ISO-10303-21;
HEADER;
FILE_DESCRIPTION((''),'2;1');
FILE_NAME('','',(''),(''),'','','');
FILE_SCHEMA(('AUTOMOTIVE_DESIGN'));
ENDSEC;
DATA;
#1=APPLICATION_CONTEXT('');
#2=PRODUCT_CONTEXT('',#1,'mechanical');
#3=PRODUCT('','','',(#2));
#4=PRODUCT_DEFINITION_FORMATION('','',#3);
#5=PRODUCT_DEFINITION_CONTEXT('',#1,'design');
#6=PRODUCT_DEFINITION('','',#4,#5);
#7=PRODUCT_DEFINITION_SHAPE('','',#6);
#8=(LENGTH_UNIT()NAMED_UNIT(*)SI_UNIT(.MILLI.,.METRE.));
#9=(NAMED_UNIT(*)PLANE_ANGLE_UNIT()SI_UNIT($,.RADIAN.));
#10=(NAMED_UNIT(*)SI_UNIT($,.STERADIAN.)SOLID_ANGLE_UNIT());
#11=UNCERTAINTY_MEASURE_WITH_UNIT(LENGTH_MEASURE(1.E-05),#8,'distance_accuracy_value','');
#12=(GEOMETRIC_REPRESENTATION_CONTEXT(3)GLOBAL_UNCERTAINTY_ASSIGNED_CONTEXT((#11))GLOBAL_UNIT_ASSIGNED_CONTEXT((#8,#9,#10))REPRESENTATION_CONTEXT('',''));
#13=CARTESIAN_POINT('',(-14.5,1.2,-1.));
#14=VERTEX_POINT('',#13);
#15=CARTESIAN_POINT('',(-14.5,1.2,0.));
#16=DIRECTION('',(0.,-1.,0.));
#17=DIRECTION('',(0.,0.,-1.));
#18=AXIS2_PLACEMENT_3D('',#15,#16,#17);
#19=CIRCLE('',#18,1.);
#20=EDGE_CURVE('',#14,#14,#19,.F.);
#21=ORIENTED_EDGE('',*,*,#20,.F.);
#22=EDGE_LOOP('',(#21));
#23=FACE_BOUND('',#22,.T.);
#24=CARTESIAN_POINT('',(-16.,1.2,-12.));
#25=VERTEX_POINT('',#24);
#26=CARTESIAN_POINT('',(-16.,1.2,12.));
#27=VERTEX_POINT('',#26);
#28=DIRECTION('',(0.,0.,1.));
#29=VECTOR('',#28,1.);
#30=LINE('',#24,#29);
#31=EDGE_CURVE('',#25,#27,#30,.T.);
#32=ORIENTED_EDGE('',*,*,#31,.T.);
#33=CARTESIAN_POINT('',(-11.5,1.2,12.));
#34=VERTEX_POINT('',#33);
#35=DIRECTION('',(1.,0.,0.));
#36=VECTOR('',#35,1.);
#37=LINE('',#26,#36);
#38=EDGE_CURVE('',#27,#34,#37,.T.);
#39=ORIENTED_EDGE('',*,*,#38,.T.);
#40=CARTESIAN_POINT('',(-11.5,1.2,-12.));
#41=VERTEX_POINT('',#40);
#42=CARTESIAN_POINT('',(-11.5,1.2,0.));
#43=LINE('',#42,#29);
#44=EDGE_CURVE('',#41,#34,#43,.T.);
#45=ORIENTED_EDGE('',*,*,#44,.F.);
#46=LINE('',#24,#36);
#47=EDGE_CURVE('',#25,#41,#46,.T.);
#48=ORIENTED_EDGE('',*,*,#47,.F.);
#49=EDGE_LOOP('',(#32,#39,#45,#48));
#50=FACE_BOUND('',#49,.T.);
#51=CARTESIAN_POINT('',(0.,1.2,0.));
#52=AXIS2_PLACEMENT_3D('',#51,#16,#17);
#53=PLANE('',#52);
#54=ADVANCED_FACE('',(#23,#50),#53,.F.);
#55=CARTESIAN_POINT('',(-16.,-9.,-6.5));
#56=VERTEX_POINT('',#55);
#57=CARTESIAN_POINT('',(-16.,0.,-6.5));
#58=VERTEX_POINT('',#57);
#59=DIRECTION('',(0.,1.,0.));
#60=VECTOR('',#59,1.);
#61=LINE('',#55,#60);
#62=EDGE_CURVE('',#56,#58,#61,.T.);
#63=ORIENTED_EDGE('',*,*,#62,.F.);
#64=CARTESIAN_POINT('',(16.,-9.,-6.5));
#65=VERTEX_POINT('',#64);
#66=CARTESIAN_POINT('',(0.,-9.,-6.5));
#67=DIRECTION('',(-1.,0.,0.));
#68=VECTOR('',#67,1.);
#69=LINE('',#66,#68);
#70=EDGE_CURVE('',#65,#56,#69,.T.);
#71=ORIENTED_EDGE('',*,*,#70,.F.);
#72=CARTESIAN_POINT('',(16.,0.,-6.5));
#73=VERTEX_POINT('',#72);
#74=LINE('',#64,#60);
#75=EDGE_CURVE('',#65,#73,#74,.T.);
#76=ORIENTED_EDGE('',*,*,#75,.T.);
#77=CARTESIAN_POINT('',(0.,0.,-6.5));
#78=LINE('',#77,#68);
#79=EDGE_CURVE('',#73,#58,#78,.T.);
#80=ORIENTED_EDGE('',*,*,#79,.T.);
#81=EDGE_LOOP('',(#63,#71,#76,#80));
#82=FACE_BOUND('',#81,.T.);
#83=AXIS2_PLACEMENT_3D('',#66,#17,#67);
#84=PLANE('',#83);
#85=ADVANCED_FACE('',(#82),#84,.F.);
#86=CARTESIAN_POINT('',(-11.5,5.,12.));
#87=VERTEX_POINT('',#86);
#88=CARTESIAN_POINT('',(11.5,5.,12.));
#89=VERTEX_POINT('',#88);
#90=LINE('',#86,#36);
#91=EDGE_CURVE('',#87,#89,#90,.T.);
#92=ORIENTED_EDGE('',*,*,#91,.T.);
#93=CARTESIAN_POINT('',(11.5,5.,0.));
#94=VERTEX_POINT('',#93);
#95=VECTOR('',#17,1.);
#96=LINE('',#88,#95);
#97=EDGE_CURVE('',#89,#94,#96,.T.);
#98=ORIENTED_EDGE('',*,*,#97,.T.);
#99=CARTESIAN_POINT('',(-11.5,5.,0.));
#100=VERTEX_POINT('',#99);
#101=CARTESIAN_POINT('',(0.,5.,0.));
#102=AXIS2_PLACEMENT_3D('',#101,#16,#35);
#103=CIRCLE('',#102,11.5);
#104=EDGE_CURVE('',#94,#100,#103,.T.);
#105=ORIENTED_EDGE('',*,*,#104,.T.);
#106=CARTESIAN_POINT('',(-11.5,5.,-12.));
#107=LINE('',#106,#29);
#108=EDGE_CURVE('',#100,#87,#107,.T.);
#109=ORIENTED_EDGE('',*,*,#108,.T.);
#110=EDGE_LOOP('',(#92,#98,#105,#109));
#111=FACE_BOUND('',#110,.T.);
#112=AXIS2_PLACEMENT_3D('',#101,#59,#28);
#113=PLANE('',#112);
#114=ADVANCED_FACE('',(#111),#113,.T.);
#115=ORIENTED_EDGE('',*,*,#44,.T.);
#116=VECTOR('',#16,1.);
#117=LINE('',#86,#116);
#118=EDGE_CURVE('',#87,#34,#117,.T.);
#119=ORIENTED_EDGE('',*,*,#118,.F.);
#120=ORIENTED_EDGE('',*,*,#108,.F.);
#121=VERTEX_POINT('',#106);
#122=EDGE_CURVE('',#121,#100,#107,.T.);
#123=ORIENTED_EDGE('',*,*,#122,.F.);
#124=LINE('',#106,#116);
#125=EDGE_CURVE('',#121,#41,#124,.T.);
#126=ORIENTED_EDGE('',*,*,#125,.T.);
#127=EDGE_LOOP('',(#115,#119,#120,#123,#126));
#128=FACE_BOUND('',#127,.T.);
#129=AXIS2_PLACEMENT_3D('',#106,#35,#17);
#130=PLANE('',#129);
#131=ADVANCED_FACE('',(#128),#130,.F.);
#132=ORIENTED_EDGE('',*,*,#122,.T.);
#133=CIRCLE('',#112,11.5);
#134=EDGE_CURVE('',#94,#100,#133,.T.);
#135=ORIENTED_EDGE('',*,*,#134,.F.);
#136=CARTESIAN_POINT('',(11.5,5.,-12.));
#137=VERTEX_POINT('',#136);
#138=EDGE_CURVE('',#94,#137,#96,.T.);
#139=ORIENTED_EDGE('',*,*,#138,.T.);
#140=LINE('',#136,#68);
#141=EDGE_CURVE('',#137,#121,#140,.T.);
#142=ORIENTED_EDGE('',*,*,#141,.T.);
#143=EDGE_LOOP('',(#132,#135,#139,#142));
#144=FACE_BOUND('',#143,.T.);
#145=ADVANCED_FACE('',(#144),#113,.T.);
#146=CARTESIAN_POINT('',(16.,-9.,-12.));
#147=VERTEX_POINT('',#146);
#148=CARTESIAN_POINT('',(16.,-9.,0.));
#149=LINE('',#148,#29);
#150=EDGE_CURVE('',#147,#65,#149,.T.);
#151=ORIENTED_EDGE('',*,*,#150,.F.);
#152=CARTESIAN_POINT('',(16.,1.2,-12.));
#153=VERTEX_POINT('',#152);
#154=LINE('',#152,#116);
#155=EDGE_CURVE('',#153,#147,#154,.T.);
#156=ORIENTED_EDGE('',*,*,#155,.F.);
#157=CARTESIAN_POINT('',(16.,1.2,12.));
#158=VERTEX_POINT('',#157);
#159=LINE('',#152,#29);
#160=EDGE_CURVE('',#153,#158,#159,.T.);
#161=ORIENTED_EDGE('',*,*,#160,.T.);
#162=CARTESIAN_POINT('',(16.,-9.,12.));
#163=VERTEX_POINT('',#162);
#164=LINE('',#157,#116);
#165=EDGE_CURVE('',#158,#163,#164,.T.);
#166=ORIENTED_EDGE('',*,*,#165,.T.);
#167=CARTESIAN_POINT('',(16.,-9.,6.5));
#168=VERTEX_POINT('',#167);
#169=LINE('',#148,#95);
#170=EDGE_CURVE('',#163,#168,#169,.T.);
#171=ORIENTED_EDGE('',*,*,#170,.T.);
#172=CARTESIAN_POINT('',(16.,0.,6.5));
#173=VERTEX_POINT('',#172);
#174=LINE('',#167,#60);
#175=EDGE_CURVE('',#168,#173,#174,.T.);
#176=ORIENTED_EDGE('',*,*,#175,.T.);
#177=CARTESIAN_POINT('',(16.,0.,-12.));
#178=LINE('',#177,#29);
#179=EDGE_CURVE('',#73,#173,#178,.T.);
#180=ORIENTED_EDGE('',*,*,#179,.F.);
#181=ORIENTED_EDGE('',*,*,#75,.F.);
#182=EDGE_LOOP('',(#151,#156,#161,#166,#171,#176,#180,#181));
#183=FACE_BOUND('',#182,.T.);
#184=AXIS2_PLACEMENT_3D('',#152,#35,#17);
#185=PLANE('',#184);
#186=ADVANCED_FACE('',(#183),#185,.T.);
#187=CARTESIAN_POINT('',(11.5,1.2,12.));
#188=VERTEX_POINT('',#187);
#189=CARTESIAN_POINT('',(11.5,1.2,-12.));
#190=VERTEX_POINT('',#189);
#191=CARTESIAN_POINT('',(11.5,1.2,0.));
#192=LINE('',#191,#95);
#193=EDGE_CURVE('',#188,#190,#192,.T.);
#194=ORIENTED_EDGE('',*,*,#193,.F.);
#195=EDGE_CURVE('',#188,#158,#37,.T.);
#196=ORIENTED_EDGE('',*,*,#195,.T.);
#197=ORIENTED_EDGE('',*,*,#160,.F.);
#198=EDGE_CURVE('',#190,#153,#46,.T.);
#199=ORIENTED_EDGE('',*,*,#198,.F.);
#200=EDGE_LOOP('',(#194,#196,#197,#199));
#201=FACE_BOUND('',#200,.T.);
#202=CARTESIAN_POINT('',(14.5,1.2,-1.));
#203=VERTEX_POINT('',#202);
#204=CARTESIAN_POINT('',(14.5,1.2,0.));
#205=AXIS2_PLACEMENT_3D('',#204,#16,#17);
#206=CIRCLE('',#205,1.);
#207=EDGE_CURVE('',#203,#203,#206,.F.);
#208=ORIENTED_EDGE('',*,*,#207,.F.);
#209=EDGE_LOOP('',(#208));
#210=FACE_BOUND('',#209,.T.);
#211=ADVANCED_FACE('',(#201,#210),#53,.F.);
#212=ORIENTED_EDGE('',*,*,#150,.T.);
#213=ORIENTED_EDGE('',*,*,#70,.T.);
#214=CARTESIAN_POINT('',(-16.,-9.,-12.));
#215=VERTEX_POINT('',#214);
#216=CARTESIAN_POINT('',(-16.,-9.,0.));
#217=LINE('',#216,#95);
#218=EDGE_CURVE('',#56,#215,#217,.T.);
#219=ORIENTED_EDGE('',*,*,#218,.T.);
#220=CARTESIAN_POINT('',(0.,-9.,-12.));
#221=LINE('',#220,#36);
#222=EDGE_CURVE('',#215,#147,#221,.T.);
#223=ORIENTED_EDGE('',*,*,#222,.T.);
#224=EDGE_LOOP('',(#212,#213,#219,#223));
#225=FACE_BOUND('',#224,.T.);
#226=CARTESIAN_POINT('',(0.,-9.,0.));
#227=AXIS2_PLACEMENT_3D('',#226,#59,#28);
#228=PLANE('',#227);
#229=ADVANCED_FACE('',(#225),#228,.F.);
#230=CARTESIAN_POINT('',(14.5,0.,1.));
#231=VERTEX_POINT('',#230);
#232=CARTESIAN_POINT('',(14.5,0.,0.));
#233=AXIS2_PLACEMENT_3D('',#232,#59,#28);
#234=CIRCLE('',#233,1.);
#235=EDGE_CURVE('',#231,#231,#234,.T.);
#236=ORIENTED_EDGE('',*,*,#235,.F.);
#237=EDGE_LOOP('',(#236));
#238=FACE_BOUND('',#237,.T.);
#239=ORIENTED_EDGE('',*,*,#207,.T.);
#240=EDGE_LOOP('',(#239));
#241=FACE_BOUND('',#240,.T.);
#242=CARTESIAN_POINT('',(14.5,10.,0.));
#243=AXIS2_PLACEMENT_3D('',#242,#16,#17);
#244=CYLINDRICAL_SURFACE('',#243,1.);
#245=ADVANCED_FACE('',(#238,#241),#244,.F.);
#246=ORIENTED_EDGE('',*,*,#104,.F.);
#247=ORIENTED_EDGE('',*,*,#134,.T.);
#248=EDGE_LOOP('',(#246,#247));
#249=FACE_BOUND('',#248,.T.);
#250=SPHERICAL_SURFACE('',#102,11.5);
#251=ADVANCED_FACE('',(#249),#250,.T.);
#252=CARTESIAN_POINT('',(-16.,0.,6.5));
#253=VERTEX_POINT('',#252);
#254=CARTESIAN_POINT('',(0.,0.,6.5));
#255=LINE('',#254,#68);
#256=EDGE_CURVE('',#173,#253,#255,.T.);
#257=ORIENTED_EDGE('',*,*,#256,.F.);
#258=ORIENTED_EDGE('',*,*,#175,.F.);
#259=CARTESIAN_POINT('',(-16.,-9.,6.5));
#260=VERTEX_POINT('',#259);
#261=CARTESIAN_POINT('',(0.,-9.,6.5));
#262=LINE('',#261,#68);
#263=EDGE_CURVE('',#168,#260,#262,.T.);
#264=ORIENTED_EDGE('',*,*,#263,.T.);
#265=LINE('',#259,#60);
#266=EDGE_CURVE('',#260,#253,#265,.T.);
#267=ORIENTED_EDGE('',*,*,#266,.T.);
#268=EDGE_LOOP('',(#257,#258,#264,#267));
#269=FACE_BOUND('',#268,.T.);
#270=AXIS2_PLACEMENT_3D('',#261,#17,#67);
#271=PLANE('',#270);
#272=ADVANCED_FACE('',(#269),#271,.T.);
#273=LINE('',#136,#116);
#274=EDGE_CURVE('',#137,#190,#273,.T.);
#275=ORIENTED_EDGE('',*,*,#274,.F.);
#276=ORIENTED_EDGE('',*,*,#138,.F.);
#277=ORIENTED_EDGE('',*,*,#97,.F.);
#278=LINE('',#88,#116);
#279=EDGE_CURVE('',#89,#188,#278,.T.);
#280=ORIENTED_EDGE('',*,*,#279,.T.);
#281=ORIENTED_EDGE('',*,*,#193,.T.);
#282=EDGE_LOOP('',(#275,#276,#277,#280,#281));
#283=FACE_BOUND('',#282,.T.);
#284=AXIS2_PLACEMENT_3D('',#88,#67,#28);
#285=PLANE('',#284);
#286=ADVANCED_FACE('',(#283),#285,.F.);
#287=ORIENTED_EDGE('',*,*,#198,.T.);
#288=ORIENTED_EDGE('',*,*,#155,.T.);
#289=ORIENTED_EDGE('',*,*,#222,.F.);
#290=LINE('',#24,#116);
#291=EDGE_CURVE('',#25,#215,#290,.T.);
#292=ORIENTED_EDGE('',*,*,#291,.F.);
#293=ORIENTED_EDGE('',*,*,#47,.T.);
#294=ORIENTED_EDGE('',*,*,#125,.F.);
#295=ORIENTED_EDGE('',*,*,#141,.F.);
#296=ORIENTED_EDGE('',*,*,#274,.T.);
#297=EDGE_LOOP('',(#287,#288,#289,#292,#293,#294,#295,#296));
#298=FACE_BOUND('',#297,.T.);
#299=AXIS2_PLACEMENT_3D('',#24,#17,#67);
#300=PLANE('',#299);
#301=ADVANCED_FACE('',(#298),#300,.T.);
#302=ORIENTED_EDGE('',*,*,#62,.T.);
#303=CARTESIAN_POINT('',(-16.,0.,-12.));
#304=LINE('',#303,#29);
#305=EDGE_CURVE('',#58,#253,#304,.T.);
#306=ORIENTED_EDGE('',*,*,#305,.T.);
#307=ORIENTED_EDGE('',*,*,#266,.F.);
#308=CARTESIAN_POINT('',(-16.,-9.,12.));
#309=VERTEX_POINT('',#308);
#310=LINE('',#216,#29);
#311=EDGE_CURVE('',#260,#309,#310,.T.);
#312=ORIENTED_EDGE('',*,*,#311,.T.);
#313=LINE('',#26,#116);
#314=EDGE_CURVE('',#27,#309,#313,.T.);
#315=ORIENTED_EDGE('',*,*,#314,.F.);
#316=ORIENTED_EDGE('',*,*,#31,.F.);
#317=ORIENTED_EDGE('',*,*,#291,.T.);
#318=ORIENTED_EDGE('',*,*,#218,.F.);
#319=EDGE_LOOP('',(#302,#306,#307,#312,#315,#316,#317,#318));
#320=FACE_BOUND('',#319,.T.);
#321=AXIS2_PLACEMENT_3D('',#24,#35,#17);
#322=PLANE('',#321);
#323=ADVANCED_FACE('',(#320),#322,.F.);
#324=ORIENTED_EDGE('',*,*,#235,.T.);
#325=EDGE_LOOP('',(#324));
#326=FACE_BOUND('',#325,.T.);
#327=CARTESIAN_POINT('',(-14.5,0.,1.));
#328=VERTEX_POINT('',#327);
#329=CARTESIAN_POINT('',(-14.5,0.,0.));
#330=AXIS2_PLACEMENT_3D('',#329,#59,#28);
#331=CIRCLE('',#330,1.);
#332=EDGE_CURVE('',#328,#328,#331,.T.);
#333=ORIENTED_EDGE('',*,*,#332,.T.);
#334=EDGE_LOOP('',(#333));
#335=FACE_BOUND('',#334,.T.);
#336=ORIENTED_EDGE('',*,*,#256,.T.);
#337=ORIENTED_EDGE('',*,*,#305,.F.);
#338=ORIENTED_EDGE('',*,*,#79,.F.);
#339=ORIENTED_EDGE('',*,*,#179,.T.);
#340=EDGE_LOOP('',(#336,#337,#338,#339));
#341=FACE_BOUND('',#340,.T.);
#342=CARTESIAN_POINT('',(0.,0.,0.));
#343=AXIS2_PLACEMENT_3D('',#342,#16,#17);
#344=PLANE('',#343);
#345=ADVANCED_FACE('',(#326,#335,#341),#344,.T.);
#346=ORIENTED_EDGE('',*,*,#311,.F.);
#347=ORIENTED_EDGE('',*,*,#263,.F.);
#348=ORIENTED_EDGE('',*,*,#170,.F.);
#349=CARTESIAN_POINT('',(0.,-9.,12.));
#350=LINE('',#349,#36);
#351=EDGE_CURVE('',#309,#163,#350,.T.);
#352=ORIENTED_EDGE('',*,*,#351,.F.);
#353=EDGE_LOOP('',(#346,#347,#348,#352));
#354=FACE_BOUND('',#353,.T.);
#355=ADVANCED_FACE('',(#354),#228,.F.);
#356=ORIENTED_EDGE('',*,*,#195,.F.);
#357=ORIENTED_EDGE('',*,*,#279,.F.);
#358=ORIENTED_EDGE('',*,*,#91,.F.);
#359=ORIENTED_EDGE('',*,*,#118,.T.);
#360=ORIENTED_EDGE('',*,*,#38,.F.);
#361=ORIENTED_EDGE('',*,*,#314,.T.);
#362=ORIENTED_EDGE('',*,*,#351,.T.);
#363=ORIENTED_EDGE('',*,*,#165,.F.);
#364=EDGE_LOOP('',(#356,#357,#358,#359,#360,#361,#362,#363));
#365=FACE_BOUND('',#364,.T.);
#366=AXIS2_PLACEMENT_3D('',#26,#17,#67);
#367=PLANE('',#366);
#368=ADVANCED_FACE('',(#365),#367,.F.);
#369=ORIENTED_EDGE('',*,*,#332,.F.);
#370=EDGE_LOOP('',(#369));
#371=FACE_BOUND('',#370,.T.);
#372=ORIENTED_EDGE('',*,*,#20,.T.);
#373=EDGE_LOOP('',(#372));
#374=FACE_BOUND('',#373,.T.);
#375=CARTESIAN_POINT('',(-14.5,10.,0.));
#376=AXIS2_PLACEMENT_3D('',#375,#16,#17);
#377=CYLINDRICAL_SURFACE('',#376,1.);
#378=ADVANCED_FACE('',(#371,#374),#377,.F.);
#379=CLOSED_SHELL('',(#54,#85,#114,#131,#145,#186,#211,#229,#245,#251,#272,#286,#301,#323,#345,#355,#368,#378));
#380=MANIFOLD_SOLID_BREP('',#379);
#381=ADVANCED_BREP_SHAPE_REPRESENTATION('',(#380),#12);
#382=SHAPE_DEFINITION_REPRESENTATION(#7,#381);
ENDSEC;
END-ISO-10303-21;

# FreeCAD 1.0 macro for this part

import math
import FreeCAD as App
import Part
import Sketcher
from FreeCAD import Vector

doc = App.newDocument("Part")
body = doc.addObject("PartDesign::Body", "Body")

sketch1 = body.newObject("Sketcher::SketchObject", "Sketch")
sketch1.AttachmentSupport = (doc.getObject("XZ_Plane"), [""])
sketch1.MapMode = "FlatFace"
sketch1.addGeometry(Part.LineSegment(Vector(-16, -12, 0), Vector(-16, 12, 0)), False)
sketch1.addGeometry(Part.LineSegment(Vector(-16, 12, 0), Vector(16, 12, 0)), False)
sketch1.addGeometry(Part.LineSegment(Vector(16, 12, 0), Vector(16, -12, 0)), False)
sketch1.addGeometry(Part.LineSegment(Vector(16, -12, 0), Vector(-16, -12, 0)), False)
sketch1.addConstraint(Sketcher.Constraint("Coincident", 0, 2, 1, 1))
sketch1.addConstraint(Sketcher.Constraint("Coincident", 1, 2, 2, 1))
sketch1.addConstraint(Sketcher.Constraint("Coincident", 2, 2, 3, 1))
sketch1.addConstraint(Sketcher.Constraint("Coincident", 3, 2, 0, 1))
sketch1.addConstraint(Sketcher.Constraint("Vertical", 0))
sketch1.addConstraint(Sketcher.Constraint("Horizontal", 1))
sketch1.addConstraint(Sketcher.Constraint("Vertical", 2))
sketch1.addConstraint(Sketcher.Constraint("Horizontal", 3))
sketch1.addConstraint(Sketcher.Constraint("Symmetric", 0, 2, 2, 2, -1, 1))
sketch1.addConstraint(Sketcher.Constraint("DistanceX", 1, 1, 1, 2, 32.0))
sketch1.addConstraint(Sketcher.Constraint("DistanceY", 0, 1, 0, 2, 24.0))
pad1 = body.newObject("PartDesign::Pad", "Pad")
pad1.Profile = sketch1
pad1.Length = 1.2
pad1.Reversed = True

sketch2 = body.newObject("Sketcher::SketchObject", "Sketch001")
sketch2.AttachmentSupport = (doc.getObject("XZ_Plane"), [""])
sketch2.MapMode = "FlatFace"
sketch2.addGeometry(Part.LineSegment(Vector(-12, -12, 0), Vector(-12, 12, 0)), False)
sketch2.addGeometry(Part.LineSegment(Vector(-12, 12, 0), Vector(12, 12, 0)), False)
sketch2.addGeometry(Part.LineSegment(Vector(12, 12, 0), Vector(12, -12, 0)), False)
sketch2.addGeometry(Part.LineSegment(Vector(12, -12, 0), Vector(-12, -12, 0)), False)
sketch2.addConstraint(Sketcher.Constraint("Coincident", 0, 2, 1, 1))
sketch2.addConstraint(Sketcher.Constraint("Coincident", 1, 2, 2, 1))
sketch2.addConstraint(Sketcher.Constraint("Coincident", 2, 2, 3, 1))
sketch2.addConstraint(Sketcher.Constraint("Coincident", 3, 2, 0, 1))
sketch2.addConstraint(Sketcher.Constraint("Vertical", 0))
sketch2.addConstraint(Sketcher.Constraint("Horizontal", 1))
sketch2.addConstraint(Sketcher.Constraint("Vertical", 2))
sketch2.addConstraint(Sketcher.Constraint("Horizontal", 3))
sketch2.addConstraint(Sketcher.Constraint("Symmetric", 0, 2, 2, 2, -1, 1))
sketch2.addConstraint(Sketcher.Constraint("DistanceX", 1, 1, 1, 2, 23.0))
sketch2.addConstraint(Sketcher.Constraint("DistanceY", 0, 1, 0, 2, 24.0))
pad2 = body.newObject("PartDesign::Pad", "Pad001")
pad2.Profile = sketch2
pad2.Length = 5
pad2.Reversed = True

sketch3 = body.newObject("Sketcher::SketchObject", "Sketch002")
sketch3.AttachmentSupport = (doc.getObject("XY_Plane"), [""])
sketch3.MapMode = "FlatFace"
sketch3.addGeometry(Part.LineSegment(Vector(0, 5, 0), Vector(12, 5, 0)), False)
sketch3.addGeometry(Part.ArcOfCircle(Part.Circle(Vector(0, 5, 0), Vector(0, 0, 1), 11), math.radians(0), math.radians(90)), False)
sketch3.addGeometry(Part.LineSegment(Vector(0, 16, 0), Vector(0, 5, 0)), False)
sketch3.addConstraint(Sketcher.Constraint("Coincident", 0, 2, 1, 1))
sketch3.addConstraint(Sketcher.Constraint("Coincident", 1, 2, 2, 1))
sketch3.addConstraint(Sketcher.Constraint("Coincident", 2, 2, 0, 1))
sketch3.addConstraint(Sketcher.Constraint("Horizontal", 0))
sketch3.addConstraint(Sketcher.Constraint("Vertical", 2))
sketch3.addConstraint(Sketcher.Constraint("Coincident", 2, 2, 1, 3))
sketch3.addConstraint(Sketcher.Constraint("PointOnObject", 1, 3, -2))
sketch3.addConstraint(Sketcher.Constraint("Radius", 1, 11.5))
sketch3.addConstraint(Sketcher.Constraint("DistanceY", -1, 1, 1, 3, 5.0))
revolution = body.newObject("PartDesign::Revolution", "Revolution")
revolution.Profile = sketch3
revolution.ReferenceAxis = (sketch3, ["V_Axis"])
revolution.Angle = 360

sketch4 = body.newObject("Sketcher::SketchObject", "Sketch003")
sketch4.AttachmentSupport = (doc.getObject("XZ_Plane"), [""])
sketch4.MapMode = "FlatFace"
sketch4.addGeometry(Part.LineSegment(Vector(-16, -12, 0), Vector(-16, -6, 0)), False)
sketch4.addGeometry(Part.LineSegment(Vector(-16, -6, 0), Vector(16, -6, 0)), False)
sketch4.addGeometry(Part.LineSegment(Vector(16, -6, 0), Vector(16, -12, 0)), False)
sketch4.addGeometry(Part.LineSegment(Vector(16, -12, 0), Vector(-16, -12, 0)), False)
sketch4.addGeometry(Part.LineSegment(Vector(-16, 6, 0), Vector(-16, 12, 0)), False)
sketch4.addGeometry(Part.LineSegment(Vector(-16, 12, 0), Vector(16, 12, 0)), False)
sketch4.addGeometry(Part.LineSegment(Vector(16, 12, 0), Vector(16, 6, 0)), False)
sketch4.addGeometry(Part.LineSegment(Vector(16, 6, 0), Vector(-16, 6, 0)), False)
sketch4.addConstraint(Sketcher.Constraint("Coincident", 0, 2, 1, 1))
sketch4.addConstraint(Sketcher.Constraint("Coincident", 1, 2, 2, 1))
sketch4.addConstraint(Sketcher.Constraint("Coincident", 2, 2, 3, 1))
sketch4.addConstraint(Sketcher.Constraint("Coincident", 3, 2, 0, 1))
sketch4.addConstraint(Sketcher.Constraint("Coincident", 4, 2, 5, 1))
sketch4.addConstraint(Sketcher.Constraint("Coincident", 5, 2, 6, 1))
sketch4.addConstraint(Sketcher.Constraint("Coincident", 6, 2, 7, 1))
sketch4.addConstraint(Sketcher.Constraint("Coincident", 7, 2, 4, 1))
sketch4.addConstraint(Sketcher.Constraint("Vertical", 0))
sketch4.addConstraint(Sketcher.Constraint("Horizontal", 1))
sketch4.addConstraint(Sketcher.Constraint("Vertical", 2))
sketch4.addConstraint(Sketcher.Constraint("Horizontal", 3))
sketch4.addConstraint(Sketcher.Constraint("Vertical", 4))
sketch4.addConstraint(Sketcher.Constraint("Horizontal", 5))
sketch4.addConstraint(Sketcher.Constraint("Vertical", 6))
sketch4.addConstraint(Sketcher.Constraint("Horizontal", 7))
sketch4.addConstraint(Sketcher.Constraint("Symmetric", 2, 2, 4, 2, -1, 1))
sketch4.addConstraint(Sketcher.Constraint("Symmetric", 0, 2, 6, 2, -1, 1))
sketch4.addConstraint(Sketcher.Constraint("Vertical", 3, 2, 4, 2))
sketch4.addConstraint(Sketcher.Constraint("DistanceX", 1, 1, 1, 2, 32.0))
sketch4.addConstraint(Sketcher.Constraint("DistanceY", 0, 1, 0, 2, 5.5))
sketch4.addConstraint(Sketcher.Constraint("DistanceY", 2, 2, -1, 1, 12.0))
pad3 = body.newObject("PartDesign::Pad", "Pad002")
pad3.Profile = sketch4
pad3.Length = 9

sketch5 = body.newObject("Sketcher::SketchObject", "Sketch004")
sketch5.AttachmentSupport = (doc.getObject("XZ_Plane"), [""])
sketch5.MapMode = "FlatFace"
sketch5.addGeometry(Part.Circle(Vector(14.5, 0, 0), Vector(0, 0, 1), 1), False)
sketch5.addGeometry(Part.Circle(Vector(-14.5, 0, 0), Vector(0, 0, 1), 1), False)
sketch5.addConstraint(Sketcher.Constraint("Equal", 0, 1))
sketch5.addConstraint(Sketcher.Constraint("Symmetric", 0, 3, 1, 3, -1, 1))
sketch5.addConstraint(Sketcher.Constraint("PointOnObject", 0, 3, -1))
sketch5.addConstraint(Sketcher.Constraint("Diameter", 0, 2.0))
sketch5.addConstraint(Sketcher.Constraint("DistanceX", 1, 3, 0, 3, 29.0))
pocket1 = body.newObject("PartDesign::Pocket", "Pocket")
pocket1.Profile = sketch5
pocket1.Length = 10

doc.recompute()
